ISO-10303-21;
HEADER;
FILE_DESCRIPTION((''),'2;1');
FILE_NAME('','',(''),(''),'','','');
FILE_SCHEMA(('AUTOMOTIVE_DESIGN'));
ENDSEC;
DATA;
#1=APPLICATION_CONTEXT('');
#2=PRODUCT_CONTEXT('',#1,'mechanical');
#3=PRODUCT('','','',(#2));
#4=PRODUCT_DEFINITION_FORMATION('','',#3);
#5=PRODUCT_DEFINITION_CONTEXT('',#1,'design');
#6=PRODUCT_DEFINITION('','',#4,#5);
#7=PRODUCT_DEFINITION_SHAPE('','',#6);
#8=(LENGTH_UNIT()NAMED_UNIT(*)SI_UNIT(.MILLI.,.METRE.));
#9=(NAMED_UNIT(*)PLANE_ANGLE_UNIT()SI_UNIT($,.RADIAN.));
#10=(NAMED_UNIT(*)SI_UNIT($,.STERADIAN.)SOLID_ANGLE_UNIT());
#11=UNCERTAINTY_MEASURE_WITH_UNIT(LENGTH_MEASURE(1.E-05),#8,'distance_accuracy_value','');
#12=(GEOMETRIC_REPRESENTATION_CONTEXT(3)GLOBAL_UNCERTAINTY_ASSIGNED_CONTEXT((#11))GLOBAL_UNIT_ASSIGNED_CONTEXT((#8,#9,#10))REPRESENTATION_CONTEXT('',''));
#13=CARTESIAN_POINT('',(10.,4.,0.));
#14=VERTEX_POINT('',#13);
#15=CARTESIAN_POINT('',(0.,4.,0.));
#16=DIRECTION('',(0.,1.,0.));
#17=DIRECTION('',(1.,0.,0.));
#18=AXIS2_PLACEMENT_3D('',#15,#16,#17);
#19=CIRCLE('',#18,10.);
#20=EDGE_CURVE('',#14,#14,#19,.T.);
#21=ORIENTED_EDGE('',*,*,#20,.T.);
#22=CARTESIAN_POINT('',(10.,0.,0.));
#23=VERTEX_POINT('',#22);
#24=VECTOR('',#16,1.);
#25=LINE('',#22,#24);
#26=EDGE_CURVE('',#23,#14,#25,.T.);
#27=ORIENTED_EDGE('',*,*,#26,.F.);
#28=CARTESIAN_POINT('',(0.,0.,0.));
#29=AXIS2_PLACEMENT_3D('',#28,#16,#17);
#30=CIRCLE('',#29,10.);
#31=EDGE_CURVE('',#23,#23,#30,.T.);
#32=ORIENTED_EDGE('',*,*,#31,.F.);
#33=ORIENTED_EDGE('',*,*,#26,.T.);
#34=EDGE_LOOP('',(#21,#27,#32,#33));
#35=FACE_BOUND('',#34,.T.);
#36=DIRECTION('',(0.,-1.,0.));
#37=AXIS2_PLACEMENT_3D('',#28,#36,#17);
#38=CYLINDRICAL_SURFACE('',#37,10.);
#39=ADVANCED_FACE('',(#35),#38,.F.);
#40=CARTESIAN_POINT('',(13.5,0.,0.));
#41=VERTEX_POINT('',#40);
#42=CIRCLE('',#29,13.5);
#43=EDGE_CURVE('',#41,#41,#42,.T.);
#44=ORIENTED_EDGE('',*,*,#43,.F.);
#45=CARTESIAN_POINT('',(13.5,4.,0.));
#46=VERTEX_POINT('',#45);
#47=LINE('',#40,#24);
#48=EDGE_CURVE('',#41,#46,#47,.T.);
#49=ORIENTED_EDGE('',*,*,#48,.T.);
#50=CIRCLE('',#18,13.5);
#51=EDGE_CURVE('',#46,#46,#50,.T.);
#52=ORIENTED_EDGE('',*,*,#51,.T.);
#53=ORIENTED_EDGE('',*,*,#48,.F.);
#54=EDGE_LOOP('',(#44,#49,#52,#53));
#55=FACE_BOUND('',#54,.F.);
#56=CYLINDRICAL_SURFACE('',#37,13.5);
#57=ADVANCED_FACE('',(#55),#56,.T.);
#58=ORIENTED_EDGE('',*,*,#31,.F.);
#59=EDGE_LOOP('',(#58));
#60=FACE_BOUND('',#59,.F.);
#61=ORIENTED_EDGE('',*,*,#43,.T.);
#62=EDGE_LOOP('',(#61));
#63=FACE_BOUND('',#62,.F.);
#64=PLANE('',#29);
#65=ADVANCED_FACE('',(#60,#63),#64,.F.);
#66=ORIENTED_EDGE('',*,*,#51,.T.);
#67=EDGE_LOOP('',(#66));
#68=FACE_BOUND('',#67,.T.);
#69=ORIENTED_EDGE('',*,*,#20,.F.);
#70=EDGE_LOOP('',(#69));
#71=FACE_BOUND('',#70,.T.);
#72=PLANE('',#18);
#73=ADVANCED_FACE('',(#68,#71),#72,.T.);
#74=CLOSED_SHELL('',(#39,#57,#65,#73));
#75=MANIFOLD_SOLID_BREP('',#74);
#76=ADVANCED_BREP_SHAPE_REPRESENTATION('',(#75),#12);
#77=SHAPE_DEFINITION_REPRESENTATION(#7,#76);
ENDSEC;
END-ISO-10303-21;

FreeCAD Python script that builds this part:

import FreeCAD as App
import Part
import Sketcher
from FreeCAD import Vector
Q = App.Units.Quantity

doc = App.newDocument("Part")
body = doc.addObject("PartDesign::Body", "Body")

# Sketch on XZ plane
sketch1 = body.newObject("Sketcher::SketchObject", "Sketch")
sketch1.AttachmentSupport = (doc.getObject("XZ_Plane"), [""])
sketch1.MapMode = "FlatFace"
sketch1.addGeometry([
    Part.Circle(Vector(0, 0, 0), Vector(0, 0, 1), 14),
    Part.Circle(Vector(0, 0, 0), Vector(0, 0, 1), 10),
], False)
sketch1.addConstraint([
    Sketcher.Constraint("Coincident", 0, 3, -1, 1),
    Sketcher.Constraint("Coincident", 1, 3, -1, 1),
    Sketcher.Constraint("Diameter", 0, Q("27 mm")),
    Sketcher.Constraint("Diameter", 1, Q("20 mm")),
])
pad1 = body.newObject("PartDesign::Pad", "Pad")
pad1.Profile = sketch1
pad1.Length = 4
pad1.Reversed = True

doc.recompute()
